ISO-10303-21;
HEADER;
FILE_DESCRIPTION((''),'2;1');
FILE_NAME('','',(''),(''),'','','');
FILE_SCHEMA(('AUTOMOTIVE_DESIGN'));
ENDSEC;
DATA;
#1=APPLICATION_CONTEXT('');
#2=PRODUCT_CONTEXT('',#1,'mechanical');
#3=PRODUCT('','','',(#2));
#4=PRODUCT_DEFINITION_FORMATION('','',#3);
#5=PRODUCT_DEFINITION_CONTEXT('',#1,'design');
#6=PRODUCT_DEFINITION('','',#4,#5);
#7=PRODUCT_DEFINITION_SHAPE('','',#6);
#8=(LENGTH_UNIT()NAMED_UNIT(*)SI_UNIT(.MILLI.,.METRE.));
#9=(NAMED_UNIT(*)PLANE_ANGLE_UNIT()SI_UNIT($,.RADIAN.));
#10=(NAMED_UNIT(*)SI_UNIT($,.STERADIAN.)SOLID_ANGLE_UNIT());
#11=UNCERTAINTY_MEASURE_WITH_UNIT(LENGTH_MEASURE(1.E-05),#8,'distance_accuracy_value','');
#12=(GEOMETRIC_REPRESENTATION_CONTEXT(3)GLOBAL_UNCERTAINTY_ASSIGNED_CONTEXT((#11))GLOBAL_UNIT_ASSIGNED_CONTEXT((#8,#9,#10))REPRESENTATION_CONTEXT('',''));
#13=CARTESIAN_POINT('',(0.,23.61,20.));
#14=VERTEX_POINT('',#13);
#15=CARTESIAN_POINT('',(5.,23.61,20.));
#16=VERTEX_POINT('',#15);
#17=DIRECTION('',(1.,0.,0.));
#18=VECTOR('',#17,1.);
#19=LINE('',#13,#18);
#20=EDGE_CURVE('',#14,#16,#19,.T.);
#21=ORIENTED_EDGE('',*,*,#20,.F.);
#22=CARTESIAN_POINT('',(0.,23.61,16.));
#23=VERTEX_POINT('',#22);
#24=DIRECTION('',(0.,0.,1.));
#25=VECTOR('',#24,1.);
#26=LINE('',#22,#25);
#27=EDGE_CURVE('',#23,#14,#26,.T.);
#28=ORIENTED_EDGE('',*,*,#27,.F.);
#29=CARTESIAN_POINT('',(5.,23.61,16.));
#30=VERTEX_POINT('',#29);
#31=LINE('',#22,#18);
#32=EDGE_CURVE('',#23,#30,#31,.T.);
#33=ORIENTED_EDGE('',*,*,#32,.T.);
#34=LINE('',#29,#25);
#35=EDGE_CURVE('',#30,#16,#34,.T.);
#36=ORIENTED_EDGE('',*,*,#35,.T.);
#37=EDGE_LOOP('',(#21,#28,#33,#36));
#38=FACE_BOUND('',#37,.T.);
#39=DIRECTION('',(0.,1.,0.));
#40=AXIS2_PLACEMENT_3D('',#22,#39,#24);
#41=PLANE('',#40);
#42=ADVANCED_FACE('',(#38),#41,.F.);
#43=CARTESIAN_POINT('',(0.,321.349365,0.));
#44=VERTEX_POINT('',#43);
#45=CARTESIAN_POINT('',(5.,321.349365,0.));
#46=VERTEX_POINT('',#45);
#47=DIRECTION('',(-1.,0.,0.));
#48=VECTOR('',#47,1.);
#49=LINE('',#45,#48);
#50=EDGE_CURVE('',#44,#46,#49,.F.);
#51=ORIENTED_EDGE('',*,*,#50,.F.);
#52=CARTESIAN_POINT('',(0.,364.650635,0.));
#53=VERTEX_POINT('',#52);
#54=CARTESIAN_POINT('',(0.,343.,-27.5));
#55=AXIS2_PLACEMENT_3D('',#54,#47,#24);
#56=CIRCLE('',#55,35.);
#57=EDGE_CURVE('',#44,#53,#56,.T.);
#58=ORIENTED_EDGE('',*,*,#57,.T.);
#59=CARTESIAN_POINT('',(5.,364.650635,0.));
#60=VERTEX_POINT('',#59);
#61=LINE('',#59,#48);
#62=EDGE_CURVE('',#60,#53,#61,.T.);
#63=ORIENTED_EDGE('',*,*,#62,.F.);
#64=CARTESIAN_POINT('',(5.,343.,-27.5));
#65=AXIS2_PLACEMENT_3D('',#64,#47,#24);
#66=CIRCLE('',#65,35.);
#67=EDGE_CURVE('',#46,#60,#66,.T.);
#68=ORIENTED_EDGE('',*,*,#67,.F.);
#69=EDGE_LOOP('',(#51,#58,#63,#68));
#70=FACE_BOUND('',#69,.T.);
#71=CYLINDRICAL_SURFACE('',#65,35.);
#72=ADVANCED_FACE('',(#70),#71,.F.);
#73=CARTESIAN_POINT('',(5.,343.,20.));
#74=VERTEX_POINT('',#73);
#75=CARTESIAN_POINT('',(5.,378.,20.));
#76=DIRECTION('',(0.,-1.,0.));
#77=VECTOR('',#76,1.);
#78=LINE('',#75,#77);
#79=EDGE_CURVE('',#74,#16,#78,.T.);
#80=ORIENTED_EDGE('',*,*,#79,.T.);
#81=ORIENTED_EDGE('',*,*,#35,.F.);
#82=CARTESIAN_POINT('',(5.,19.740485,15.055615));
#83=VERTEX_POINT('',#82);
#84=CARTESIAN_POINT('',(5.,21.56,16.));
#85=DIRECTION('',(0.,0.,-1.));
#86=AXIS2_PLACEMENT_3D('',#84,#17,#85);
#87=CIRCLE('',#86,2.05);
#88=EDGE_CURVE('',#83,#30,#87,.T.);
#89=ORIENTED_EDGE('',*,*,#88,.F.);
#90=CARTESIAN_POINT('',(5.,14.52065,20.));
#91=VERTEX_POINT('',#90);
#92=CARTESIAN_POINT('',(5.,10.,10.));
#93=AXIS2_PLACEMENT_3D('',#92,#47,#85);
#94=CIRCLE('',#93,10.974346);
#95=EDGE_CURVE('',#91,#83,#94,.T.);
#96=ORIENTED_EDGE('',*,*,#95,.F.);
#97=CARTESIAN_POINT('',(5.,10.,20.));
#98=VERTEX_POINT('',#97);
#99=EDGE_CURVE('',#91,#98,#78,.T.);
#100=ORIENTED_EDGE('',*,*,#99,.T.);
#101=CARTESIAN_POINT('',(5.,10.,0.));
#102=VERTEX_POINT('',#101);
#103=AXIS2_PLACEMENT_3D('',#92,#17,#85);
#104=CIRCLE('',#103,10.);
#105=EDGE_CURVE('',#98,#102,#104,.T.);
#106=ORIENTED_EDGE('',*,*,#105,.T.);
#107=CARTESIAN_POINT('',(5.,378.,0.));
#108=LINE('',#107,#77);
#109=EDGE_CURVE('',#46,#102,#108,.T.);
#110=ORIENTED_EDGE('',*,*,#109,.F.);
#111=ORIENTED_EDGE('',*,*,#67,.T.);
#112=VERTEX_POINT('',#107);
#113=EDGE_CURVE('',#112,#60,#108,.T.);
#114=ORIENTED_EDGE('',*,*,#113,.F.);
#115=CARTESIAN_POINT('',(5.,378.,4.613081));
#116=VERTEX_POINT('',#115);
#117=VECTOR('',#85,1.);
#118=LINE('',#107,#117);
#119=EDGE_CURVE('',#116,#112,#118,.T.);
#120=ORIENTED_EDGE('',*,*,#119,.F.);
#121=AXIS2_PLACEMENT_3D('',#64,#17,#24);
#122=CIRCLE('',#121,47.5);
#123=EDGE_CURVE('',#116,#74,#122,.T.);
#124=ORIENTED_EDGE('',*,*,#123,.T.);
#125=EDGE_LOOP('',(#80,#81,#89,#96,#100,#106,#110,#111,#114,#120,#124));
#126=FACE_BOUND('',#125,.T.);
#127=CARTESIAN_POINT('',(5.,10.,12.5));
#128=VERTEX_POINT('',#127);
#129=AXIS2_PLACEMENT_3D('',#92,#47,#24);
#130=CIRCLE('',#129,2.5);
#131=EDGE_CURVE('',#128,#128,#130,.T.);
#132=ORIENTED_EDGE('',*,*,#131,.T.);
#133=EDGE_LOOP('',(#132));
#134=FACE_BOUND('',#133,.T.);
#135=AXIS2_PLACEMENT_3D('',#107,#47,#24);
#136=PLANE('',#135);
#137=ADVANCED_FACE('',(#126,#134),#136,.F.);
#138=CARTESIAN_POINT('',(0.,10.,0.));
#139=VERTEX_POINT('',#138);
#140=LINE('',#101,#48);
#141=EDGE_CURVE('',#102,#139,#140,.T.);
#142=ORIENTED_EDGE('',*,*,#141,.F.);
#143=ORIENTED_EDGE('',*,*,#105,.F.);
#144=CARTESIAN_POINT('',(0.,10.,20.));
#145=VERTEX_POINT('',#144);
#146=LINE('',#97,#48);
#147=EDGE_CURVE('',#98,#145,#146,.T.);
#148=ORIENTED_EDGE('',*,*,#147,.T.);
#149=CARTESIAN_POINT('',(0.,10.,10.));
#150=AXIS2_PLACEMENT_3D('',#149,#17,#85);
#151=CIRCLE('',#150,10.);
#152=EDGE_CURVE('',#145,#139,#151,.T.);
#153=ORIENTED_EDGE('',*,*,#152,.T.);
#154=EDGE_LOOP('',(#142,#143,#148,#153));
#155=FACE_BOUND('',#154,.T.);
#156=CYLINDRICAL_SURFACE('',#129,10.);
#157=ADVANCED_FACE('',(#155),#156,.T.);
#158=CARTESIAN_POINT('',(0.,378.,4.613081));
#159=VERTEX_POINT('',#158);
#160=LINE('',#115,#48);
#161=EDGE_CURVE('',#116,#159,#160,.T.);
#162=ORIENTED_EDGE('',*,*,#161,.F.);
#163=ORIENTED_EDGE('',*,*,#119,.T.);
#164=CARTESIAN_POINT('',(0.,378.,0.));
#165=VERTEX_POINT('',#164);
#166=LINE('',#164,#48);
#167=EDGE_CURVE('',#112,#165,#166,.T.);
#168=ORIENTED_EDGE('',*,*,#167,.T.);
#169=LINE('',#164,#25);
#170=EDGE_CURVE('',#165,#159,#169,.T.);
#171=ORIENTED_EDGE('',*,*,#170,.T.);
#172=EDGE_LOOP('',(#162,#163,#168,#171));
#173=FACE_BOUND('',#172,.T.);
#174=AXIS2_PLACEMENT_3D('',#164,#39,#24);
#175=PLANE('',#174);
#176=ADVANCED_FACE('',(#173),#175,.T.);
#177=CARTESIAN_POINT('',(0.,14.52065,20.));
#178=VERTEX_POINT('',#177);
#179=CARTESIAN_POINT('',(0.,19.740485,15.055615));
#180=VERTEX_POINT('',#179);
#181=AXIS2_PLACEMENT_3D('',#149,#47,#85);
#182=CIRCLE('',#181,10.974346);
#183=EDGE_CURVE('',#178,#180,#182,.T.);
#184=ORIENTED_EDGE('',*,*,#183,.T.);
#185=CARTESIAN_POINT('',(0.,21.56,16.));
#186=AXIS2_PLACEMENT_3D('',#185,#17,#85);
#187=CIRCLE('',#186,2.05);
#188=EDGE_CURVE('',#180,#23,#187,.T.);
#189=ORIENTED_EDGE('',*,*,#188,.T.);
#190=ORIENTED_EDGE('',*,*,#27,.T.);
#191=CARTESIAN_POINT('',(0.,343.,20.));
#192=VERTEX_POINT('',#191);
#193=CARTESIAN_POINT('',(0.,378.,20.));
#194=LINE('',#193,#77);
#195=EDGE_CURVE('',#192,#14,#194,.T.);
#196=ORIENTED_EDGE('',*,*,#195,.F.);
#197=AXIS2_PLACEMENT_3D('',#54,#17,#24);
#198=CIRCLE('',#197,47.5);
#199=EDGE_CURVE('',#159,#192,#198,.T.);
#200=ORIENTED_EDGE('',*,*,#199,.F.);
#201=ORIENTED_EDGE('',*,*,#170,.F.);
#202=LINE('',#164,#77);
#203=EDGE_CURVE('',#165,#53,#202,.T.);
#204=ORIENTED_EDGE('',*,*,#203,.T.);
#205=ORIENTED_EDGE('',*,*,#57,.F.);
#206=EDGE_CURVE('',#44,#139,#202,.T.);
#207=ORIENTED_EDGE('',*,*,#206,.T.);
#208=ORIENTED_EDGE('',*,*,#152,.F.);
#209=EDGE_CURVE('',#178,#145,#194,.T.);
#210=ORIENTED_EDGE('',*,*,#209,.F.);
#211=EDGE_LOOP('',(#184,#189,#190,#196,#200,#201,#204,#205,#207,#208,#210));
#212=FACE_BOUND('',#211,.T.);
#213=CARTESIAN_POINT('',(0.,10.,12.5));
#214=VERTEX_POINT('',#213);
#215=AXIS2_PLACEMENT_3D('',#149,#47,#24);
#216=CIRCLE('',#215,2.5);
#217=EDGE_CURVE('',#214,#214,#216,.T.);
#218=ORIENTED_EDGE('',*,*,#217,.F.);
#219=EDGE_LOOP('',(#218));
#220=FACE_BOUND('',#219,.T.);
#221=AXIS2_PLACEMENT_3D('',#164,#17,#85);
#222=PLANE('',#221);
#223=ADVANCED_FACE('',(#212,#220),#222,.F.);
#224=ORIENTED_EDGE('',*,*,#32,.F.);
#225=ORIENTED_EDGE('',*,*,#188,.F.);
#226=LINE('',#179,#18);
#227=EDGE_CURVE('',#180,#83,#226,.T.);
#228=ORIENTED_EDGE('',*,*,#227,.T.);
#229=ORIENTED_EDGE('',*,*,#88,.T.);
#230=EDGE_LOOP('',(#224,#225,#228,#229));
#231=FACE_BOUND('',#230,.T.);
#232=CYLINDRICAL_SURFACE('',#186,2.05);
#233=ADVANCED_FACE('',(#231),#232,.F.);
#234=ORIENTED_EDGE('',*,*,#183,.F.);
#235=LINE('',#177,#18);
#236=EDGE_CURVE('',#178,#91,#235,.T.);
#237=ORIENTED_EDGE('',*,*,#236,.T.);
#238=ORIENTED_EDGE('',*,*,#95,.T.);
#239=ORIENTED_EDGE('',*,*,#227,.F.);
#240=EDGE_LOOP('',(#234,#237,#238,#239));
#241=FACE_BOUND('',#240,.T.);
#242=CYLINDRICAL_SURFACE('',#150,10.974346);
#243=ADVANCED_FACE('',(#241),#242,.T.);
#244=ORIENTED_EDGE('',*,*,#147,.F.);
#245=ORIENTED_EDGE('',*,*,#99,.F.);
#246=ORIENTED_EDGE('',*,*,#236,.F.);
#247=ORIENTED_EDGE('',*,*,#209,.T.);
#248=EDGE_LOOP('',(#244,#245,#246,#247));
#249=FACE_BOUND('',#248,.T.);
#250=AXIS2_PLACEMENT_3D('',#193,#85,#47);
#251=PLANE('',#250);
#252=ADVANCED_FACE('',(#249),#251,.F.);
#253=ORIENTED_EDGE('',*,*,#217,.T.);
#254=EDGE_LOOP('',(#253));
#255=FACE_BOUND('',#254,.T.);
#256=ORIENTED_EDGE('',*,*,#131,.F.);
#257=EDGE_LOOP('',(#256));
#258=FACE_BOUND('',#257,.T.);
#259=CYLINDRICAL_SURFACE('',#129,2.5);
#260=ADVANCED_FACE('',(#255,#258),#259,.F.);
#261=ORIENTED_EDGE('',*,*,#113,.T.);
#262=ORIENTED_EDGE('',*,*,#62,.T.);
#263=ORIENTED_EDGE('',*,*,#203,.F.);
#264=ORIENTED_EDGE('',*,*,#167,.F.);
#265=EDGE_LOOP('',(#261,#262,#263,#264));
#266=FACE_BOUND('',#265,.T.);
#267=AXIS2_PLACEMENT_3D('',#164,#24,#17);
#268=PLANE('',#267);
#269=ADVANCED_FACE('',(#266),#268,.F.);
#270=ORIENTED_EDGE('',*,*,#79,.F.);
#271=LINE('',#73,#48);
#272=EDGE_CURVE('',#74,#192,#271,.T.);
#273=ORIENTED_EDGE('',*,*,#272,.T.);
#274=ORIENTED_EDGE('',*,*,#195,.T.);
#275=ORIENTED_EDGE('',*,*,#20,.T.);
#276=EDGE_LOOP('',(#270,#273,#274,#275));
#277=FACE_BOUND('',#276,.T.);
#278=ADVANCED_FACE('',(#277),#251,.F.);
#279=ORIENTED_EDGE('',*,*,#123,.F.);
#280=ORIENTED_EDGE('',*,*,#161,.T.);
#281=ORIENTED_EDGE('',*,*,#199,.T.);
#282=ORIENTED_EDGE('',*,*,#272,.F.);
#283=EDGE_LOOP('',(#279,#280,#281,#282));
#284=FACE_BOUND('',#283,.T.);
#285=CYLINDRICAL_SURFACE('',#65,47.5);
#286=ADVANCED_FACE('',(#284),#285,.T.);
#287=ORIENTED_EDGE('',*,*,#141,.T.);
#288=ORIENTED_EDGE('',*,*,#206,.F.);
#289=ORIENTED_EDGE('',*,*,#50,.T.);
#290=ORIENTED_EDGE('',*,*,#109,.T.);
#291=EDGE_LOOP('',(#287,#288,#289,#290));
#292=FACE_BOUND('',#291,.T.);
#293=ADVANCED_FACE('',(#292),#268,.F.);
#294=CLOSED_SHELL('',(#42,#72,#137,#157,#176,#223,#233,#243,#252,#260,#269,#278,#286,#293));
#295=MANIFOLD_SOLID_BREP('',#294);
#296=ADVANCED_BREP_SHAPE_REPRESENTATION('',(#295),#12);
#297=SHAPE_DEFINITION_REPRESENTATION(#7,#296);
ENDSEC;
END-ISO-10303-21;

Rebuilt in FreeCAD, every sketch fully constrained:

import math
import FreeCAD as App
import Part
import Sketcher

doc = App.newDocument("Part")
body = doc.addObject("PartDesign::Body", "Body")

sketch1 = body.newObject("Sketcher::SketchObject", "Sketch")
sketch1.AttachmentSupport = (doc.getObject("XZ_Plane"), [""])
sketch1.MapMode = "FlatFace"
sketch1.addGeometry([
    Part.LineSegment(App.Vector(0, 0, 0), App.Vector(0, 20, 0)),
    Part.LineSegment(App.Vector(0, 20, 0), App.Vector(5, 20, 0)),
    Part.LineSegment(App.Vector(5, 20, 0), App.Vector(5, 0, 0)),
    Part.LineSegment(App.Vector(5, 0, 0), App.Vector(0, 0, 0)),
], False)
sketch1.addConstraint([
    Sketcher.Constraint("Coincident", 0, 2, 1, 1),
    Sketcher.Constraint("Coincident", 1, 2, 2, 1),
    Sketcher.Constraint("Coincident", 2, 2, 3, 1),
    Sketcher.Constraint("Coincident", 3, 2, 0, 1),
    Sketcher.Constraint("Vertical", 0),
    Sketcher.Constraint("Horizontal", 1),
    Sketcher.Constraint("Vertical", 2),
    Sketcher.Constraint("Horizontal", 3),
    Sketcher.Constraint("Coincident", 3, 2, -1, 1),
    Sketcher.Constraint("DistanceX", 1, 1, 1, 2, 5.0),
    Sketcher.Constraint("DistanceY", 0, 1, 0, 2, 20.0),
])
pad1 = body.newObject("PartDesign::Pad", "Pad")
pad1.Profile = sketch1
pad1.Length = 378
pad1.Reversed = True

sketch2 = body.newObject("Sketcher::SketchObject", "Sketch001")
sketch2.AttachmentSupport = (doc.getObject("YZ_Plane"), [""])
sketch2.MapMode = "FlatFace"
sketch2.addGeometry([
    Part.LineSegment(App.Vector(10, 0, 0), App.Vector(-2, 0, 0)),
    Part.LineSegment(App.Vector(-2, 0, 0), App.Vector(-2, 20, 0)),
    Part.LineSegment(App.Vector(-2, 20, 0), App.Vector(10, 20, 0)),
    Part.ArcOfCircle(Part.Circle(App.Vector(10, 10, 0), App.Vector(0, 0, 1), 10), math.radians(90), math.radians(270)),
], False)
sketch2.addConstraint([
    Sketcher.Constraint("Coincident", 0, 2, 1, 1),
    Sketcher.Constraint("Coincident", 1, 2, 2, 1),
    Sketcher.Constraint("Tangent", 2, 2, 3, 1),
    Sketcher.Constraint("Tangent", 3, 2, 0, 1),
    Sketcher.Constraint("Horizontal", 0),
    Sketcher.Constraint("Vertical", 1),
    Sketcher.Constraint("Horizontal", 2),
    Sketcher.Constraint("PointOnObject", 0, 2, -1),
    Sketcher.Constraint("Radius", 3, 10.0),
    Sketcher.Constraint("DistanceX", 0, 2, 0, 1, 12.0),
    Sketcher.Constraint("DistanceX", -1, 1, 3, 3, 10.0),
])
pocket1 = body.newObject("PartDesign::Pocket", "Pocket")
pocket1.Profile = sketch2
pocket1.Type = "ThroughAll"
pocket1.Reversed = True

sketch3 = body.newObject("Sketcher::SketchObject", "Sketch002")
sketch3.AttachmentSupport = (doc.getObject("YZ_Plane"), [""])
sketch3.MapMode = "FlatFace"
sketch3.addGeometry(Part.Circle(App.Vector(10, 10, 0), App.Vector(0, 0, 1), 2.5), False)
sketch3.addConstraint([
    Sketcher.Constraint("Diameter", 0, 5.0),
    Sketcher.Constraint("DistanceX", -1, 1, 0, 3, 10.0),
    Sketcher.Constraint("DistanceY", -1, 1, 0, 3, 10.0),
])
pocket2 = body.newObject("PartDesign::Pocket", "Pocket001")
pocket2.Profile = sketch3
pocket2.Type = "ThroughAll"
pocket2.Reversed = True

sketch4 = body.newObject("Sketcher::SketchObject", "Sketch003")
sketch4.AttachmentSupport = (doc.getObject("YZ_Plane"), [""])
sketch4.MapMode = "FlatFace"
sketch4.addGeometry(Part.Circle(App.Vector(343, -27.5, 0), App.Vector(0, 0, 1), 35), False)
sketch4.addConstraint([
    Sketcher.Constraint("Diameter", 0, 70.0),
    Sketcher.Constraint("DistanceX", -1, 1, 0, 3, 343.0),
    Sketcher.Constraint("DistanceY", 0, 3, -1, 1, 27.5),
])
pocket3 = body.newObject("PartDesign::Pocket", "Pocket002")
pocket3.Profile = sketch4
pocket3.Type = "ThroughAll"
pocket3.Reversed = True

sketch5 = body.newObject("Sketcher::SketchObject", "Sketch004")
sketch5.AttachmentSupport = (doc.getObject("YZ_Plane"), [""])
sketch5.MapMode = "FlatFace"
sketch5.addGeometry([
    Part.LineSegment(App.Vector(378, 20, 0), App.Vector(381.729833, 0, 0)),
    Part.ArcOfCircle(Part.Circle(App.Vector(343, -27.5, 0), App.Vector(0, 0, 1), 47.5), math.radians(35.37654), math.radians(90)),
    Part.LineSegment(App.Vector(343, 20, 0), App.Vector(378, 20, 0)),
], False)
sketch5.addConstraint([
    Sketcher.Constraint("Coincident", 0, 2, 1, 1),
    Sketcher.Constraint("Tangent", 1, 2, 2, 1),
    Sketcher.Constraint("Coincident", 2, 2, 0, 1),
    Sketcher.Constraint("Horizontal", 2),
    Sketcher.Constraint("PointOnObject", 0, 2, -1),
    Sketcher.Constraint("Radius", 1, 47.5),
    Sketcher.Constraint("DistanceX", 2, 1, 2, 2, 35.0),
    Sketcher.Constraint("DistanceX", -1, 1, 1, 3, 343.0),
    Sketcher.Constraint("DistanceY", -1, 1, 1, 2, 20.0),
])
pocket4 = body.newObject("PartDesign::Pocket", "Pocket003")
pocket4.Profile = sketch5
pocket4.Type = "ThroughAll"
pocket4.Reversed = True

sketch6 = body.newObject("Sketcher::SketchObject", "Sketch005")
sketch6.AttachmentSupport = (doc.getObject("YZ_Plane"), [""])
sketch6.MapMode = "FlatFace"
sketch6.AttachmentOffset = App.Placement(App.Vector(0, 0, 5), App.Rotation())
sketch6.addGeometry([
    Part.LineSegment(App.Vector(23.61, 16, 0), App.Vector(23.61, 20, 0)),
    Part.LineSegment(App.Vector(23.61, 20, 0), App.Vector(14.52065, 20, 0)),
    Part.ArcOfCircle(Part.Circle(App.Vector(10, 10, 0), App.Vector(0, 0, 1), 10.974346), math.radians(27.430718), math.radians(65.673938)),
    Part.ArcOfCircle(Part.Circle(App.Vector(21.56, 16, 0), App.Vector(0, 0, 1), 2.05), math.radians(-152.569282), math.radians(0)),
], False)
sketch6.addConstraint([
    Sketcher.Constraint("Coincident", 0, 2, 1, 1),
    Sketcher.Constraint("Coincident", 1, 2, 2, 2),
    Sketcher.Constraint("Tangent", 2, 1, 3, 1),
    Sketcher.Constraint("Tangent", 3, 2, 0, 1),
    Sketcher.Constraint("Vertical", 0),
    Sketcher.Constraint("Horizontal", 1),
    Sketcher.Constraint("DistanceY", 0, 1, 0, 2, 4.0),
    Sketcher.Constraint("Radius", 3, 2.05),
    Sketcher.Constraint("DistanceX", -1, 1, 2, 3, 10.0),
    Sketcher.Constraint("DistanceY", -1, 1, 2, 3, 10.0),
    Sketcher.Constraint("DistanceY", -1, 1, 3, 3, 16.0),
    Sketcher.Constraint("DistanceX", -1, 1, 3, 3, 21.56),
])
pocket5 = body.newObject("PartDesign::Pocket", "Pocket004")
pocket5.Profile = sketch6
pocket5.Type = "ThroughAll"

doc.recompute()
